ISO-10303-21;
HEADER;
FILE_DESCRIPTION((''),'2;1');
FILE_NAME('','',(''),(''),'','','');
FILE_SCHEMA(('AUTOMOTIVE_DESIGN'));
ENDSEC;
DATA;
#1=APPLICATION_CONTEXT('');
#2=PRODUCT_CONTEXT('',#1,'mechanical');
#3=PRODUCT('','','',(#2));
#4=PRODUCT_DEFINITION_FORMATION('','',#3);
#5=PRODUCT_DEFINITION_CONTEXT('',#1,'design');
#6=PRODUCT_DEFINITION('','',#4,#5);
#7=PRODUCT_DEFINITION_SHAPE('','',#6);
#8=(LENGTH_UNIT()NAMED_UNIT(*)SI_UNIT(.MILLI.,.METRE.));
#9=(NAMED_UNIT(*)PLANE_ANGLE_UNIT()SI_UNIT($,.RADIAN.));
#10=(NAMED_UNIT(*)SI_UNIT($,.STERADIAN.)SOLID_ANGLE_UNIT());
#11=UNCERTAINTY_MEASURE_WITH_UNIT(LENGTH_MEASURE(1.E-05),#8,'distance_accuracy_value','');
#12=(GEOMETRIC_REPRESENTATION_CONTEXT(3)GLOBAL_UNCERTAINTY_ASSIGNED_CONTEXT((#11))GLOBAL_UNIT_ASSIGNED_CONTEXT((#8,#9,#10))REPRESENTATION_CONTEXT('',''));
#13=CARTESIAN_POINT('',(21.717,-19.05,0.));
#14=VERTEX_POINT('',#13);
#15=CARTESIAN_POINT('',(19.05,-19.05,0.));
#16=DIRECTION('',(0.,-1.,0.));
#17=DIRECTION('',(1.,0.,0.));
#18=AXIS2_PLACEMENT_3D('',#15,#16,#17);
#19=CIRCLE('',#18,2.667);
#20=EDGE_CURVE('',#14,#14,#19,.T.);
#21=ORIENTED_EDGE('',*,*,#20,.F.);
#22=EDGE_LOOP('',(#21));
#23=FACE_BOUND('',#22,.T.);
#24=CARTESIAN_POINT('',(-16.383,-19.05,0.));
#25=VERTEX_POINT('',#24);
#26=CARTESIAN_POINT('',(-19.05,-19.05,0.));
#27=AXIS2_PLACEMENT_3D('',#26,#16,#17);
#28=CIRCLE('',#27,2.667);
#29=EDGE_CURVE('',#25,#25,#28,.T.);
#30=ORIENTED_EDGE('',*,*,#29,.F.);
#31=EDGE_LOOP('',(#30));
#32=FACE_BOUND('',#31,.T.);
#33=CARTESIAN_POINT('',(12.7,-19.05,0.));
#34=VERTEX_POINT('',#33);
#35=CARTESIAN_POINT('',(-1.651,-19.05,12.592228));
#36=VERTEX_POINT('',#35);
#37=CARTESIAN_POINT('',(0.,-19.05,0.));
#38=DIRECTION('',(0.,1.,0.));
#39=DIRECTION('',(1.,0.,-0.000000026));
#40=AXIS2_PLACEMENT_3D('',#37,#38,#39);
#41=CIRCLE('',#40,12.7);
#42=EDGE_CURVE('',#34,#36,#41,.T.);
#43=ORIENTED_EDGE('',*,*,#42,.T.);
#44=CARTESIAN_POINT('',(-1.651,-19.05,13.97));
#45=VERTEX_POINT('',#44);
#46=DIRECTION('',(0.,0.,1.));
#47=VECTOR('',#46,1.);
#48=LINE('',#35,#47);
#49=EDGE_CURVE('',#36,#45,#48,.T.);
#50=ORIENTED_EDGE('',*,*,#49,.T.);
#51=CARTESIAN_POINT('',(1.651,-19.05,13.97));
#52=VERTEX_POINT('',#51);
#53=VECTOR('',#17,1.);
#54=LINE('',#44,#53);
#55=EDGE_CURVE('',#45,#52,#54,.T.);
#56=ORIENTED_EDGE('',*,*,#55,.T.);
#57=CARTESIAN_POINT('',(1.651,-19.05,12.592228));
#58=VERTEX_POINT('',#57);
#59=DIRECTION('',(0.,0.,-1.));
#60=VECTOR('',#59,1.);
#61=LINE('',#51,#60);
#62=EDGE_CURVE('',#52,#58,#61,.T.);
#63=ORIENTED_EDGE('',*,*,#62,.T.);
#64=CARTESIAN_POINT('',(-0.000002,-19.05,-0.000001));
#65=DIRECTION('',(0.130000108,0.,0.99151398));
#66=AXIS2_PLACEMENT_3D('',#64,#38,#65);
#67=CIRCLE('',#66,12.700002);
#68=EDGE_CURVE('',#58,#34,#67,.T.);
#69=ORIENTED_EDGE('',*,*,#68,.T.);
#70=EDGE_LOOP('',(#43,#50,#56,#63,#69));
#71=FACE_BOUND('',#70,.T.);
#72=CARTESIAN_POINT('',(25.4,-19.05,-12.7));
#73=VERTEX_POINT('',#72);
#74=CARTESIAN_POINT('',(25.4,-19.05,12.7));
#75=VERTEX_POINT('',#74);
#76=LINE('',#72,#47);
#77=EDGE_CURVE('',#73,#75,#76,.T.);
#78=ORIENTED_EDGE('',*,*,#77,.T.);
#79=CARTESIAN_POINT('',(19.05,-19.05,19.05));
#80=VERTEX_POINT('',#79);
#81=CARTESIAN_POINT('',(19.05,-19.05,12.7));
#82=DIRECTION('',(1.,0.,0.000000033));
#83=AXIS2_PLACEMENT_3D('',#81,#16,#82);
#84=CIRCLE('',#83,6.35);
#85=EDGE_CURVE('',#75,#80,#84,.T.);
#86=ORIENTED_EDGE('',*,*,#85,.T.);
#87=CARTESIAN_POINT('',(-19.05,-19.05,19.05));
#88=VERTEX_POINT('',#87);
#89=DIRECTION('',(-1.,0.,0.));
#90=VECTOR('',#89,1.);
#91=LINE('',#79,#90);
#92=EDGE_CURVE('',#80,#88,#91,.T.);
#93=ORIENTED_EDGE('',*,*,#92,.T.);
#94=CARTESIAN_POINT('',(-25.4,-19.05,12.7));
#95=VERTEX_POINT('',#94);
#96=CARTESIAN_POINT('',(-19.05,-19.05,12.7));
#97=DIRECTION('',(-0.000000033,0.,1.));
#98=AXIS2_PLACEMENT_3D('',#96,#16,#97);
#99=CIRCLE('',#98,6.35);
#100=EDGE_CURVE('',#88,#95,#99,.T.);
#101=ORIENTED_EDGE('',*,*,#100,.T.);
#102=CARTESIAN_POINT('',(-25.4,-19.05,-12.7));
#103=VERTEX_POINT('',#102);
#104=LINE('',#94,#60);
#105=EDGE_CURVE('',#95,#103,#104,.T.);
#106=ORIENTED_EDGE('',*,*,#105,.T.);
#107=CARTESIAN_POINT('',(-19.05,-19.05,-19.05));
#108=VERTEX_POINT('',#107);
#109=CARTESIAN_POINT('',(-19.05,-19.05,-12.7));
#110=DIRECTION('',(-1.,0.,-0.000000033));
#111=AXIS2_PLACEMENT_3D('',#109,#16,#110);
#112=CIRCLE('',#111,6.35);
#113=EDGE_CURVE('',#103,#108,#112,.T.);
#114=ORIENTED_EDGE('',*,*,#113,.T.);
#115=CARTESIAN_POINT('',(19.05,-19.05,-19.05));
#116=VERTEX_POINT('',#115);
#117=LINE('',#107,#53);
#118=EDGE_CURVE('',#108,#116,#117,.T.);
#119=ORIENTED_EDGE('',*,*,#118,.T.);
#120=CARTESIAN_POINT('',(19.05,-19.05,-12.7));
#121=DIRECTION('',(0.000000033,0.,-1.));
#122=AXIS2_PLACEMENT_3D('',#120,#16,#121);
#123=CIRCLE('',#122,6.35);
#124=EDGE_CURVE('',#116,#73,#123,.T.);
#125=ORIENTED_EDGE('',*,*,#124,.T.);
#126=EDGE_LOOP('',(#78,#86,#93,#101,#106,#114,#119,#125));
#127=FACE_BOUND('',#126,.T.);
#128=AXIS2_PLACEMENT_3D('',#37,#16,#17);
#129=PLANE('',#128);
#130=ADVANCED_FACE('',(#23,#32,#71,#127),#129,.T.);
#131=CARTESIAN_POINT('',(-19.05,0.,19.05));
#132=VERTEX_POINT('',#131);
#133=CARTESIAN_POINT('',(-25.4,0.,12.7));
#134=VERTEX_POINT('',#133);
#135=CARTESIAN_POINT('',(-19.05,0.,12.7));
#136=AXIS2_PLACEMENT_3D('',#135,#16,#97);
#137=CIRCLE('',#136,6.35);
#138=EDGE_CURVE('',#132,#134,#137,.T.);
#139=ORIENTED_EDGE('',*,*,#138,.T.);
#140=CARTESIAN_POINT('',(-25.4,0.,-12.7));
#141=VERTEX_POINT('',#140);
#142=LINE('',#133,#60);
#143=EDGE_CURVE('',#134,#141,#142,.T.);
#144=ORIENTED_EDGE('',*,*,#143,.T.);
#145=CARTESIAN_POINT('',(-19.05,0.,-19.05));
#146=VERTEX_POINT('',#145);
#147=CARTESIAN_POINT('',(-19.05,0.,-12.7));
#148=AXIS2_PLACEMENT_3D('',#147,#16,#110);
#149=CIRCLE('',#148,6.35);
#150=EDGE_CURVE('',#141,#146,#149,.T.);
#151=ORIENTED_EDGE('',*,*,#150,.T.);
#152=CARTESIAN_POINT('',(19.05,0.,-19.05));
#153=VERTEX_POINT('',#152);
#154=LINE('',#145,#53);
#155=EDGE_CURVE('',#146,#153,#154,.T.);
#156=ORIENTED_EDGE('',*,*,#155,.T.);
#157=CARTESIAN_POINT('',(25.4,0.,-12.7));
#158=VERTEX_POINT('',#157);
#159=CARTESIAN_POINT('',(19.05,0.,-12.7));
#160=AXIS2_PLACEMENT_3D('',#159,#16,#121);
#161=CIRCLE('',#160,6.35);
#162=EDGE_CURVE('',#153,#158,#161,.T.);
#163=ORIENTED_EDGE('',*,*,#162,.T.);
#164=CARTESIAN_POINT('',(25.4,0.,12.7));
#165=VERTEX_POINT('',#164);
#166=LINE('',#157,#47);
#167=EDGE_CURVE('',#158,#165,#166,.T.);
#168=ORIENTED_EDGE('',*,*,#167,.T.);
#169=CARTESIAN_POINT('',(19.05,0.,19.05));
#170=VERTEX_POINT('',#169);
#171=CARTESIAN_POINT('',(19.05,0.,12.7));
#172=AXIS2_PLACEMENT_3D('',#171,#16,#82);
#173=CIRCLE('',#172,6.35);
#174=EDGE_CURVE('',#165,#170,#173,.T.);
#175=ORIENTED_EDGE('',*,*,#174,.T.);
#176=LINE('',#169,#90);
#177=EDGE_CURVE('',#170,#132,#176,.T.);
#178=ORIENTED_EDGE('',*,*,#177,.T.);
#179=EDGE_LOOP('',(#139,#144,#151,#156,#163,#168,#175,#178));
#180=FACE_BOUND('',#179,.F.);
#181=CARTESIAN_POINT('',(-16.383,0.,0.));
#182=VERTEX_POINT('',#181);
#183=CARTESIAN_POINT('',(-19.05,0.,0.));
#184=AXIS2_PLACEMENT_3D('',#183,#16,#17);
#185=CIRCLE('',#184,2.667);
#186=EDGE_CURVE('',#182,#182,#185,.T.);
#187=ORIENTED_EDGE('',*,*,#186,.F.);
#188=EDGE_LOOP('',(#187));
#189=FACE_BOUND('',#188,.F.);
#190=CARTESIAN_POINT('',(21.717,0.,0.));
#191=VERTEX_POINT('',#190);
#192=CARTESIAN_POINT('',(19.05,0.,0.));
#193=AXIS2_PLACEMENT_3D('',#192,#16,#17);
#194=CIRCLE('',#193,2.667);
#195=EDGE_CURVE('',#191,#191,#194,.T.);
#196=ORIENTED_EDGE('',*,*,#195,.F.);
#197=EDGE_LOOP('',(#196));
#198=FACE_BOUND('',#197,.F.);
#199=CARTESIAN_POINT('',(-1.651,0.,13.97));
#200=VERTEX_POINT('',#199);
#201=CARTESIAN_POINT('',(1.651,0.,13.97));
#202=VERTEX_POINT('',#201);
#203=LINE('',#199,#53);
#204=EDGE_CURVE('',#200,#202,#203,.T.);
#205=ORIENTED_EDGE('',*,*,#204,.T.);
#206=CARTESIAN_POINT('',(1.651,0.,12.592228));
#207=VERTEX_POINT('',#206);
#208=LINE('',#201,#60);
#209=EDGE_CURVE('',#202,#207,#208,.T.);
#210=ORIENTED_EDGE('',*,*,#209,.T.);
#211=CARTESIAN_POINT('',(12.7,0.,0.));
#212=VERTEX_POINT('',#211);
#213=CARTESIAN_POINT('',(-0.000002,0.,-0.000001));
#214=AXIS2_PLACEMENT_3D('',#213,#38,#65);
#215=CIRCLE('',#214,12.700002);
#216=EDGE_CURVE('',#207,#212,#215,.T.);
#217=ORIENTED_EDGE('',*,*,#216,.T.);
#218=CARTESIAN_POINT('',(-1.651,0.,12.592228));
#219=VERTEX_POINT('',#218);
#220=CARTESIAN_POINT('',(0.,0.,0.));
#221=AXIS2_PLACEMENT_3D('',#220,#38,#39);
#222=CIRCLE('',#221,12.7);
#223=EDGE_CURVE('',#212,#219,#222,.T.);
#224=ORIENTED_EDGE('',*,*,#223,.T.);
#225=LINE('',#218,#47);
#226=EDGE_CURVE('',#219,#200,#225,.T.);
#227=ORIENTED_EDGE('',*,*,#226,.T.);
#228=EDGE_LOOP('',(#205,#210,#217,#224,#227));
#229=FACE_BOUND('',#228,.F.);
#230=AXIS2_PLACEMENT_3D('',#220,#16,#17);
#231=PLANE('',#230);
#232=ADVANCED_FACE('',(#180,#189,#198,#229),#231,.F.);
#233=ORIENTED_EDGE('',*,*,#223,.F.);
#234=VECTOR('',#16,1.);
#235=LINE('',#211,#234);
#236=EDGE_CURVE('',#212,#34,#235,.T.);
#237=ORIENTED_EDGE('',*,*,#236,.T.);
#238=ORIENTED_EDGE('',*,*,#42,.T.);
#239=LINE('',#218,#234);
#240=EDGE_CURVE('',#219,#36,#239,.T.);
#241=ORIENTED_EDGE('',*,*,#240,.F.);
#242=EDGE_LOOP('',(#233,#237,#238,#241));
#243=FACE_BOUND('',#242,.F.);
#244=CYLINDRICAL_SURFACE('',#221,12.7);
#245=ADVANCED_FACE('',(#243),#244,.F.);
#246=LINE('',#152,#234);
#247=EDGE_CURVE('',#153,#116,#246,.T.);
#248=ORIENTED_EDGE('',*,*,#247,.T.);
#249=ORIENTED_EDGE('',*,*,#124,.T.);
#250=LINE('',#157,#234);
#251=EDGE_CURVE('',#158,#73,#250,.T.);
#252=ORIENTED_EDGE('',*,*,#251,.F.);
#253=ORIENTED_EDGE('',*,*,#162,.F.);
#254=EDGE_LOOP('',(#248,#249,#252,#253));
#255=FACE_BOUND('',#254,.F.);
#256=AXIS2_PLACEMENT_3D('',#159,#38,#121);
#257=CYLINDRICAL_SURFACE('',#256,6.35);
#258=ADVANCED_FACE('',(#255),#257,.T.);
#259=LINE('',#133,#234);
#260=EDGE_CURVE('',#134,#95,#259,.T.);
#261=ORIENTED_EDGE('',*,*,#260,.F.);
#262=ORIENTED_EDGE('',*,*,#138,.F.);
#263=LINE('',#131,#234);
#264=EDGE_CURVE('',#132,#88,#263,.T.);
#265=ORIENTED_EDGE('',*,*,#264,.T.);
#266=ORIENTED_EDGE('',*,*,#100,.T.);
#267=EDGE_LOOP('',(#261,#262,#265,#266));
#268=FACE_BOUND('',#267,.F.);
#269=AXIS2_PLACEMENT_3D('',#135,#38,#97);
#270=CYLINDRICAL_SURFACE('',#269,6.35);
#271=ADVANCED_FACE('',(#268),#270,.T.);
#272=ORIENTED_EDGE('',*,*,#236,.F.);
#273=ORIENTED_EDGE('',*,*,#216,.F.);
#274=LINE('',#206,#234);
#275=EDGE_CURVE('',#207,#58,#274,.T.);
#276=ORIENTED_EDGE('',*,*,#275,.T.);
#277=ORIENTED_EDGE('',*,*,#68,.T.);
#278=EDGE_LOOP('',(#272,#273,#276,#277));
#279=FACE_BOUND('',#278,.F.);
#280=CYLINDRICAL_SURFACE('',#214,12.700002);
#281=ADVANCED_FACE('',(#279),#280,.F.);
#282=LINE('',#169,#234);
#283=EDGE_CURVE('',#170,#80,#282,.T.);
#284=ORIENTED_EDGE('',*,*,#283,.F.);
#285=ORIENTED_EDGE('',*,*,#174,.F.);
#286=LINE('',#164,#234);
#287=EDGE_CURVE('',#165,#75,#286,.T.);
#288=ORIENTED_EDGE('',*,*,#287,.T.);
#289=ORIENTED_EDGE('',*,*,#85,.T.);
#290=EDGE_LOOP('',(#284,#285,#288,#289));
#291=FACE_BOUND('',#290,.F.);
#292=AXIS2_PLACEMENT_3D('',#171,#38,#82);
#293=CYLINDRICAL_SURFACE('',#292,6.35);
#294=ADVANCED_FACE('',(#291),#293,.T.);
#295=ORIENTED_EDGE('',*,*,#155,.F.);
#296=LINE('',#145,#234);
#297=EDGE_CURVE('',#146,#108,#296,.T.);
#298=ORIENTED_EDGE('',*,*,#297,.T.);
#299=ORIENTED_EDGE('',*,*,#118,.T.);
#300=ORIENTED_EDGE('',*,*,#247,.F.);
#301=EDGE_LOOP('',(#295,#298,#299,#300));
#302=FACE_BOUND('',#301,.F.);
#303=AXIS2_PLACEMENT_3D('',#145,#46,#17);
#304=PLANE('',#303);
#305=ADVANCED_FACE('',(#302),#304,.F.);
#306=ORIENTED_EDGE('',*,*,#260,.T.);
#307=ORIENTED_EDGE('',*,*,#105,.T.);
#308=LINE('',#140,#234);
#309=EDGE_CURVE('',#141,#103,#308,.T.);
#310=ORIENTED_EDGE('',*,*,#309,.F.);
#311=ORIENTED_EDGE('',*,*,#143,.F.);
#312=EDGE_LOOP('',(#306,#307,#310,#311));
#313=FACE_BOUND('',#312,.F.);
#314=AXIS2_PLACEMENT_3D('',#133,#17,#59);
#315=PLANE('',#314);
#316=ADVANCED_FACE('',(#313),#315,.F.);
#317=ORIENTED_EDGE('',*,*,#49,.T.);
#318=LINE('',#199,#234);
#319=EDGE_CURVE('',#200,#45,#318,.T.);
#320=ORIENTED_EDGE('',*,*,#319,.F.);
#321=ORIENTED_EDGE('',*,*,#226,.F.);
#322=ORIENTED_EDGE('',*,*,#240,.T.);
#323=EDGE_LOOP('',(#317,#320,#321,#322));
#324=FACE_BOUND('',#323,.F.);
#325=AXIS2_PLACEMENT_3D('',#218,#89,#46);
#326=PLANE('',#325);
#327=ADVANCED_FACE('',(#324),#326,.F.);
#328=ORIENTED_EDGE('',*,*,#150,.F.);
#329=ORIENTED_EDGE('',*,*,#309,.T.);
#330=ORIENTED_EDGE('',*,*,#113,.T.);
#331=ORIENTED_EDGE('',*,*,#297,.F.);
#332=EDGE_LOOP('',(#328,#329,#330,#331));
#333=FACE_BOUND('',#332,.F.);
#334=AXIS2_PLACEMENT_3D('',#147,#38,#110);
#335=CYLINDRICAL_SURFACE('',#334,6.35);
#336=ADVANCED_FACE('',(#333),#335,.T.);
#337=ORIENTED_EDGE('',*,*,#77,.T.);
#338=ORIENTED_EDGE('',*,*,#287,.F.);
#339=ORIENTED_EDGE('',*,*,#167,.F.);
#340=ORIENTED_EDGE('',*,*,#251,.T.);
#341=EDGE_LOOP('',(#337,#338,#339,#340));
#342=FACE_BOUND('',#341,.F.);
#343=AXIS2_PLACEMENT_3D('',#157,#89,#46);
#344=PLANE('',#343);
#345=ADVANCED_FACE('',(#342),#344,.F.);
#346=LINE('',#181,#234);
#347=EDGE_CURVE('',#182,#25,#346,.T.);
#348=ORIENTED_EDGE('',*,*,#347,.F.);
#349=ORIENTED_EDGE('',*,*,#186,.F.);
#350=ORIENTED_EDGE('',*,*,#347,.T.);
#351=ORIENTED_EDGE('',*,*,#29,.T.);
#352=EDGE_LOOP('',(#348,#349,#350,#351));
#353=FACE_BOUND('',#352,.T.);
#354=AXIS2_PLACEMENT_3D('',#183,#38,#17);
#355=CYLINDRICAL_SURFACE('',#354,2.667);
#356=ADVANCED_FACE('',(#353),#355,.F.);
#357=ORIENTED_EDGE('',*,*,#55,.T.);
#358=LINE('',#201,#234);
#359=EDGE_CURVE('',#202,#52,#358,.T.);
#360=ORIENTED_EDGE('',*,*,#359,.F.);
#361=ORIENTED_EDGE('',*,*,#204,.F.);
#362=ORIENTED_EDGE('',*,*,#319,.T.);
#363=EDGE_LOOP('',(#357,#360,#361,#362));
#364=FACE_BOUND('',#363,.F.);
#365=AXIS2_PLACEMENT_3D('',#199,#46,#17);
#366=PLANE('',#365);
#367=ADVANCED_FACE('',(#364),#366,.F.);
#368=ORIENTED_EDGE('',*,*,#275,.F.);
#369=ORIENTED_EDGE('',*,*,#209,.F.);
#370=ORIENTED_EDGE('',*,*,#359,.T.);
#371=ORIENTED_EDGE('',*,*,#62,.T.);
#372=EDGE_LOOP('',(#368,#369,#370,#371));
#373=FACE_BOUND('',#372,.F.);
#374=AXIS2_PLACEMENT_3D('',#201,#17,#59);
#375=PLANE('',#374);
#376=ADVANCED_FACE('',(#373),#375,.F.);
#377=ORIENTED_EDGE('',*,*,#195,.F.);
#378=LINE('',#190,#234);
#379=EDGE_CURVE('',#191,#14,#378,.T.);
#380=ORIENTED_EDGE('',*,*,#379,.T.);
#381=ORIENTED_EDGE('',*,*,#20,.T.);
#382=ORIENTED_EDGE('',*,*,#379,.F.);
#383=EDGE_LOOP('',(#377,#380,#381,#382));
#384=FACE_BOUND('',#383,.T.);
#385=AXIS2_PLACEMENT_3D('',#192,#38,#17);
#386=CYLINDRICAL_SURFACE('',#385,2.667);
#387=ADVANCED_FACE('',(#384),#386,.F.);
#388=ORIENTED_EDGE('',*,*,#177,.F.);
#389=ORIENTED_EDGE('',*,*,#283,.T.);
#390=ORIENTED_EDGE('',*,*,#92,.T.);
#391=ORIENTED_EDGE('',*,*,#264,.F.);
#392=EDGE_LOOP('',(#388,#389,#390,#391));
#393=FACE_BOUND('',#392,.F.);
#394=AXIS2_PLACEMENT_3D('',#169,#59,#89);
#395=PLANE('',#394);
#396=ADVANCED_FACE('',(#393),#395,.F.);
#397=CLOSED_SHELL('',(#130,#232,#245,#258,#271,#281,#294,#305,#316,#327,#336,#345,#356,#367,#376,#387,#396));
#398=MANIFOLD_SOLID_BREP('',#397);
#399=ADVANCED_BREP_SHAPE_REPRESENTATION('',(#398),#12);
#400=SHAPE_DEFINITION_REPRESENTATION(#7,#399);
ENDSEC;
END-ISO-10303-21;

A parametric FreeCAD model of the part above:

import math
import FreeCAD as App
import Part
import Sketcher
from FreeCAD import Vector
Q = App.Units.Quantity

doc = App.newDocument("Part")
body = doc.addObject("PartDesign::Body", "Body")

# Sketch on XZ plane
sketch1 = body.newObject("Sketcher::SketchObject", "Sketch")
sketch1.AttachmentSupport = (doc.getObject("XZ_Plane"), [""])
sketch1.MapMode = "FlatFace"
sketch1.addGeometry([
    Part.ArcOfCircle(Part.Circle(Vector(19, 12.7, 0), Vector(0, 0, 1), 6.4), math.radians(0), math.radians(90)),  # 0
    Part.LineSegment(Vector(19.1, 19.1, 0), Vector(-19.1, 19.1, 0)),  # 1
    Part.ArcOfCircle(Part.Circle(Vector(-19, 12.7, 0), Vector(0, 0, 1), 6.4), math.radians(90), math.radians(180)),  # 2
    Part.LineSegment(Vector(-25.4, 12.7, 0), Vector(-25.4, -12.7, 0)),  # 3
    Part.ArcOfCircle(Part.Circle(Vector(-19, -12.7, 0), Vector(0, 0, 1), 6.4), math.radians(-180), math.radians(-90)),  # 4
    Part.LineSegment(Vector(-19.1, -19.1, 0), Vector(19.1, -19.1, 0)),  # 5
    Part.ArcOfCircle(Part.Circle(Vector(19, -12.7, 0), Vector(0, 0, 1), 6.4), math.radians(-90), math.radians(0)),  # 6
    Part.LineSegment(Vector(25.4, -12.7, 0), Vector(25.4, 12.7, 0)),  # 7
    Part.Circle(Vector(-19.1, 0, 0), Vector(0, 0, 1), 2.7),  # 8
    Part.Circle(Vector(19.1, 0, 0), Vector(0, 0, 1), 2.7),  # 9
    Part.LineSegment(Vector(1.7, 14, 0), Vector(1.7, 12.6, 0)),  # 10
    Part.ArcOfCircle(Part.Circle(Vector(0, 0, 0), Vector(0, 0, 1), 12.7), math.radians(0), math.radians(83)),  # 11
    Part.ArcOfCircle(Part.Circle(Vector(0, 0, 0), Vector(0, 0, 1), 12.7), math.radians(97), math.radians(360)),  # 12
    Part.LineSegment(Vector(-1.7, 12.6, 0), Vector(-1.7, 14, 0)),  # 13
    Part.LineSegment(Vector(-1.7, 14, 0), Vector(1.7, 14, 0)),  # 14
], False)
sketch1.addConstraint([
    Sketcher.Constraint("Tangent", 0, 2, 1, 1),
    Sketcher.Constraint("Tangent", 1, 2, 2, 1),
    Sketcher.Constraint("Tangent", 2, 2, 3, 1),
    Sketcher.Constraint("Tangent", 3, 2, 4, 1),
    Sketcher.Constraint("Tangent", 4, 2, 5, 1),
    Sketcher.Constraint("Tangent", 5, 2, 6, 1),
    Sketcher.Constraint("Tangent", 6, 2, 7, 1),
    Sketcher.Constraint("Tangent", 7, 2, 0, 1),
    Sketcher.Constraint("Coincident", 10, 2, 11, 2),
    Sketcher.Constraint("Tangent", 11, 1, 12, 2),
    Sketcher.Constraint("Coincident", 12, 1, 13, 1),
    Sketcher.Constraint("Coincident", 13, 2, 14, 1),
    Sketcher.Constraint("Coincident", 14, 2, 10, 1),
    Sketcher.Constraint("Horizontal", 1),
    Sketcher.Constraint("Vertical", 3),
    Sketcher.Constraint("Horizontal", 5),
    Sketcher.Constraint("Vertical", 7),
    Sketcher.Constraint("Vertical", 10),
    Sketcher.Constraint("Vertical", 13),
    Sketcher.Constraint("Horizontal", 14),
    Sketcher.Constraint("Coincident", 11, 3, -1, 1),
    Sketcher.Constraint("Equal", 0, 2),
    Sketcher.Constraint("Equal", 2, 4),
    Sketcher.Constraint("Equal", 4, 6),
    Sketcher.Constraint("Equal", 8, 9),
    Sketcher.Constraint("Equal", 11, 12),
    Sketcher.Constraint("Symmetric", 0, 3, 4, 3, -1, 1),
    Sketcher.Constraint("Symmetric", 8, 3, 9, 3, -1, 1),
    Sketcher.Constraint("PointOnObject", 8, 3, -1),
    Sketcher.Constraint("PointOnObject", 11, 1, -1),
    Sketcher.Constraint("Horizontal", 10, 2, 12, 1),
    Sketcher.Constraint("Vertical", 4, 3, 8, 3),
    Sketcher.Constraint("Radius", 11, Q("0.5000001 in")),
    Sketcher.Constraint("Diameter", 8, Q("0.21 in")),
    Sketcher.Constraint("DistanceY", 3, 2, 3, 1, Q("1 in")),
    Sketcher.Constraint("Radius", 0, Q("0.25 in")),
    Sketcher.Constraint("DistanceX", 1, 2, 1, 1, Q("1.5 in")),
    Sketcher.Constraint("DistanceX", 14, 1, 14, 2, Q("0.13 in")),
    Sketcher.Constraint("DistanceY", -1, 1, 13, 2, Q("0.55 in")),
])
pad1 = body.newObject("PartDesign::Pad", "Pad")
pad1.Profile = sketch1
pad1.Length = Q("0.75 in")

doc.recompute()
